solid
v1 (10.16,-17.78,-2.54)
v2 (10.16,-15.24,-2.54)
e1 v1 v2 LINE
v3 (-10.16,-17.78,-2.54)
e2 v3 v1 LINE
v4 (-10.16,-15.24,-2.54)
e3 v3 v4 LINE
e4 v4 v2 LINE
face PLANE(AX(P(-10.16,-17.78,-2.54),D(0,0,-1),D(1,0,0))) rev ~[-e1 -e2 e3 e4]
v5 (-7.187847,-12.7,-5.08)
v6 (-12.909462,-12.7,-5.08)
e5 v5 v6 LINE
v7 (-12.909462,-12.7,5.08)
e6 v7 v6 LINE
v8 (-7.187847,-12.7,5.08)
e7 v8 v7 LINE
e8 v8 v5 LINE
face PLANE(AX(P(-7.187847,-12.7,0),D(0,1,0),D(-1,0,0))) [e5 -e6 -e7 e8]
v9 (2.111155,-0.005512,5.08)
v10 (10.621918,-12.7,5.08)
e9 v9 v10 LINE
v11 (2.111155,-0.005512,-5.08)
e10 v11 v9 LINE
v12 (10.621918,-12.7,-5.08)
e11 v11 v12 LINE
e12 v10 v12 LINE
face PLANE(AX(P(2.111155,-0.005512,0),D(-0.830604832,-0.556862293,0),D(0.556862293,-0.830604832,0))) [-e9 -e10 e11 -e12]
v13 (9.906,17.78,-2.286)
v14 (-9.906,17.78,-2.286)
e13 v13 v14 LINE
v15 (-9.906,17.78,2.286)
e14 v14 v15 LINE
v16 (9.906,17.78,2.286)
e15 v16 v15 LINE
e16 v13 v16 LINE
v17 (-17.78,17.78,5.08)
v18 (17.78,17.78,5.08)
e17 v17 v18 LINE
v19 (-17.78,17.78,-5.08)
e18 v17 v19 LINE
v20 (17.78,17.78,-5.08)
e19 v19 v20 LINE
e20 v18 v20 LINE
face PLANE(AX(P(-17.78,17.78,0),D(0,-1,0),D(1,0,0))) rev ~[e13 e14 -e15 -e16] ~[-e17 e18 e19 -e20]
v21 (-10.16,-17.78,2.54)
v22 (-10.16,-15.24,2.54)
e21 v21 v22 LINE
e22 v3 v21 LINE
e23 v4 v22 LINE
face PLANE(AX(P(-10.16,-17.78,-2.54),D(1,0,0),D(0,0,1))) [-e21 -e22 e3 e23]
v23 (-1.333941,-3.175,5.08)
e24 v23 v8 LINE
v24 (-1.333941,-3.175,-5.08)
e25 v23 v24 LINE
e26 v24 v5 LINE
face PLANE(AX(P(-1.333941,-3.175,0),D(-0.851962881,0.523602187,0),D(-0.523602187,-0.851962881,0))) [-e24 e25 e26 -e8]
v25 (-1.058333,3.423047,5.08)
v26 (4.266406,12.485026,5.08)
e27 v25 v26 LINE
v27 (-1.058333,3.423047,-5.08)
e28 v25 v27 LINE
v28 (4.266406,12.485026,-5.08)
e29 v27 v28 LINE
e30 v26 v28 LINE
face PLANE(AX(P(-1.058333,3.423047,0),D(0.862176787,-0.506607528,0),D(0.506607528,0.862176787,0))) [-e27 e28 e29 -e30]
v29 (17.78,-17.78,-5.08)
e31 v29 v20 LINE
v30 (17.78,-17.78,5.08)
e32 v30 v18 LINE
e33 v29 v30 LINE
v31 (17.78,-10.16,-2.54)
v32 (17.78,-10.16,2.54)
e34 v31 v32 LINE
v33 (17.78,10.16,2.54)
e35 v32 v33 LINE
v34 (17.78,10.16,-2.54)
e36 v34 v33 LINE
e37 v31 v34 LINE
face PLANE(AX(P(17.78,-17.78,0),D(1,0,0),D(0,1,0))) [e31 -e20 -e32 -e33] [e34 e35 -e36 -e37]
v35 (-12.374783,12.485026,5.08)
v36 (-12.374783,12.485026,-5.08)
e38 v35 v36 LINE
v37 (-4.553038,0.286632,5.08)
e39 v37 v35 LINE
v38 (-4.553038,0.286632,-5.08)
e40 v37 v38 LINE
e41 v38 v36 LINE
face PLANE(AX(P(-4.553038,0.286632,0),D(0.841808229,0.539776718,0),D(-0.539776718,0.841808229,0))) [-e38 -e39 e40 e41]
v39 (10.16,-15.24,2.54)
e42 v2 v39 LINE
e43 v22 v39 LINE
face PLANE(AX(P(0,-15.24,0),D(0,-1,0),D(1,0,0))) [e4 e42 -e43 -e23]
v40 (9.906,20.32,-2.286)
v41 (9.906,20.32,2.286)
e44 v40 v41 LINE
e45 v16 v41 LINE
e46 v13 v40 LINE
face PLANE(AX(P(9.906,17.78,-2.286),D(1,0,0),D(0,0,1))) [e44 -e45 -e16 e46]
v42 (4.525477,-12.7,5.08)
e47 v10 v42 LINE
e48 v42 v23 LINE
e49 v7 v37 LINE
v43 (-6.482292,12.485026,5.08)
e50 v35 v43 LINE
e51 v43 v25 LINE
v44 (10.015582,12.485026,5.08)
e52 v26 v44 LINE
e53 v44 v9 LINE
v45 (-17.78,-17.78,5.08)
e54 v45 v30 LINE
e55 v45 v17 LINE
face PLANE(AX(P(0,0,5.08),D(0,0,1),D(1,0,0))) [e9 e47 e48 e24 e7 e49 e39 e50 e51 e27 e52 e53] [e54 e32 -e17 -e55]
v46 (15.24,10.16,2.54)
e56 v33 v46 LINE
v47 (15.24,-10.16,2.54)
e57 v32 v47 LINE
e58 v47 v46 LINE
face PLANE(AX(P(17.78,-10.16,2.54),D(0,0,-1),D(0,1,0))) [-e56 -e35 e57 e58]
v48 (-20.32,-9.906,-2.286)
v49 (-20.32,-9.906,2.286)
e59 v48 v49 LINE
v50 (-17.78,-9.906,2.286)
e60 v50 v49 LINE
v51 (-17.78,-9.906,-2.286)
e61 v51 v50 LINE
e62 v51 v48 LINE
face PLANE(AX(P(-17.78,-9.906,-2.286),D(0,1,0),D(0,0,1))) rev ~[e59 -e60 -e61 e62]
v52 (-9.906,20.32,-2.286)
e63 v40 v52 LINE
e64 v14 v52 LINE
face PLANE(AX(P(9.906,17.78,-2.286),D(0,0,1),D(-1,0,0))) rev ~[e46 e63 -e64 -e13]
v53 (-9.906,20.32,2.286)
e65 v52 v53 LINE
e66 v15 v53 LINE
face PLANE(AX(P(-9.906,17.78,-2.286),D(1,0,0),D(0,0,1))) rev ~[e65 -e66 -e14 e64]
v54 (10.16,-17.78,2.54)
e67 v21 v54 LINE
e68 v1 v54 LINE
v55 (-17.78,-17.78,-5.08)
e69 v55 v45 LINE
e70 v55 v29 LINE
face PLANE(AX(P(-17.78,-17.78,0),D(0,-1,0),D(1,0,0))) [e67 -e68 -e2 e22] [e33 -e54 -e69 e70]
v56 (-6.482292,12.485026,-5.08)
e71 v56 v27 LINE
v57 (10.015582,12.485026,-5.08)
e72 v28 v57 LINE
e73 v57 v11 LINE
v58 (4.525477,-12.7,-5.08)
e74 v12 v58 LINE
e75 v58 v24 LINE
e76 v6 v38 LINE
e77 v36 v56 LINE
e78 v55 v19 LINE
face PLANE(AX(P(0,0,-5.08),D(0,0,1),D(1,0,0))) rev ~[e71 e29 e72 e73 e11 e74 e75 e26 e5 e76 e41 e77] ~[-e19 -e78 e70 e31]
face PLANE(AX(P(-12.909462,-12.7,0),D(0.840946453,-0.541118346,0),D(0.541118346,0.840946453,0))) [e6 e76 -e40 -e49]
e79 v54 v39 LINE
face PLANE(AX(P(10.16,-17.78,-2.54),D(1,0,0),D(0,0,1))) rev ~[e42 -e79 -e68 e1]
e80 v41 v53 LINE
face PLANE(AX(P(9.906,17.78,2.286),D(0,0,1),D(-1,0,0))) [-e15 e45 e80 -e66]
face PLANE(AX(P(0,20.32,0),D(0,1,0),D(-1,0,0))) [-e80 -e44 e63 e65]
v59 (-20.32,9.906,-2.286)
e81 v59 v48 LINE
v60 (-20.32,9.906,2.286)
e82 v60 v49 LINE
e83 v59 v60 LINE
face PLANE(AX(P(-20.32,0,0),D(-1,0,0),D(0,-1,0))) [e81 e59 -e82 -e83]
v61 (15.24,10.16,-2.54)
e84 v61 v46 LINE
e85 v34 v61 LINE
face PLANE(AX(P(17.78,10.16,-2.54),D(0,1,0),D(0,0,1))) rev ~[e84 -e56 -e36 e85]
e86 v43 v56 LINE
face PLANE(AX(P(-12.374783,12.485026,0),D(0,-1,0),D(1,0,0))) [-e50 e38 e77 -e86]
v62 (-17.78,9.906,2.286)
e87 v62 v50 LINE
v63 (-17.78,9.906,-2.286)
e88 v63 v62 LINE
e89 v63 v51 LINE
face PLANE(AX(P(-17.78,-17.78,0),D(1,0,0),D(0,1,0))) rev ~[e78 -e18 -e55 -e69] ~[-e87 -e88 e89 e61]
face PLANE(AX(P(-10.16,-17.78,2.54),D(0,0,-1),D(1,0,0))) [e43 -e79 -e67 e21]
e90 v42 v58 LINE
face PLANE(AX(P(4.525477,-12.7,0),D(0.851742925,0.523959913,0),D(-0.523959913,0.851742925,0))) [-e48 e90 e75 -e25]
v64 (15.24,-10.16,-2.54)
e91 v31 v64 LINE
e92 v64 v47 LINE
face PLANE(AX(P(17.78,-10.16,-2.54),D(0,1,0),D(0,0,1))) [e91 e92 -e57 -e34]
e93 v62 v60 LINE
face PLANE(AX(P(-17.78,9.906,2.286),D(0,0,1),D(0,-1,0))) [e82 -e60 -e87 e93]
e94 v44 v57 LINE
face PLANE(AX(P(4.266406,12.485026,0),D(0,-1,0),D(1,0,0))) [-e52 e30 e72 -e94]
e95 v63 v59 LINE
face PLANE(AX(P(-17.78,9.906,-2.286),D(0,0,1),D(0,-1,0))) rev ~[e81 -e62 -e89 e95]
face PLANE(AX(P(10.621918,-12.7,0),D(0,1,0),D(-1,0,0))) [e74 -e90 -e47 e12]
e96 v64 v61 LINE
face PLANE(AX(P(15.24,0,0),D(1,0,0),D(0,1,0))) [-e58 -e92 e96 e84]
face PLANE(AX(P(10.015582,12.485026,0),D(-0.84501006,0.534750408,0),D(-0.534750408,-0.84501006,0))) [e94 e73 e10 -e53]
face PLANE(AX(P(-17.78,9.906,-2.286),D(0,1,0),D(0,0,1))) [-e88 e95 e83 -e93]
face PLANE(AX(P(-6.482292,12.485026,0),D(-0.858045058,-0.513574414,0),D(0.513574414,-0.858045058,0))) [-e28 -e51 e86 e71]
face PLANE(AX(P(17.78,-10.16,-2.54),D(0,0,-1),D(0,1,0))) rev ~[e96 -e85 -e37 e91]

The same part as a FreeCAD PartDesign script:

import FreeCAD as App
import Part
import Sketcher
from FreeCAD import Vector
Q = App.Units.Quantity

doc = App.newDocument("Part")
params = doc.addObject("Spreadsheet::Sheet", "Params")
for row, (alias, value) in enumerate([
    ("sketch1_width", "1.4 in"),
    ("pad1_length", "0.4 in"),
    ("sketch2_width", "0.78 in"),
    ("sketch2_height", "0.18 in"),
    ("pad2_length", "0.1 in"),
    ("sketch3_width", "0.78 in"),
    ("sketch3_height", "0.18 in"),
    ("pad3_length", "0.1 in"),
    ("sketch4_width", "0.8 in"),
    ("sketch4_height", "0.2 in"),
    ("pocket1_length", "0.1 in"),
    ("sketch5_width", "0.8 in"),
    ("sketch5_height", "0.2 in"),
    ("pocket2_length", "0.1 in"),
], start=1):
    params.set(f"A{row}", alias)
    params.set(f"B{row}", "=" + value)
    params.setAlias(f"B{row}", alias)

body = doc.addObject("PartDesign::Body", "Body")

sketch1 = body.newObject("Sketcher::SketchObject", "Sketch")
sketch1.AttachmentSupport = (doc.getObject("XY_Plane"), [""])
sketch1.MapMode = "FlatFace"
sketch1.addGeometry(Part.LineSegment(Vector(-18, 18, 0), Vector(-18, -18, 0)), False)
sketch1.addGeometry(Part.LineSegment(Vector(-18, -18, 0), Vector(18, -18, 0)), False)
sketch1.addGeometry(Part.LineSegment(Vector(18, -18, 0), Vector(18, 18, 0)), False)
sketch1.addGeometry(Part.LineSegment(Vector(18, 18, 0), Vector(-18, 18, 0)), False)
sketch1.addGeometry(Part.LineSegment(Vector(10, 12, 0), Vector(2, 0, 0)), False)
sketch1.addGeometry(Part.LineSegment(Vector(2, 0, 0), Vector(11, -13, 0)), False)
sketch1.addGeometry(Part.LineSegment(Vector(11, -13, 0), Vector(5, -13, 0)), False)
sketch1.addGeometry(Part.LineSegment(Vector(5, -13, 0), Vector(-1, -3, 0)), False)
sketch1.addGeometry(Part.LineSegment(Vector(-1, -3, 0), Vector(-7, -13, 0)), False)
sketch1.addGeometry(Part.LineSegment(Vector(-7, -13, 0), Vector(-13, -13, 0)), False)
sketch1.addGeometry(Part.LineSegment(Vector(-13, -13, 0), Vector(-5, 0, 0)), False)
sketch1.addGeometry(Part.LineSegment(Vector(-5, 0, 0), Vector(-12, 12, 0)), False)
sketch1.addGeometry(Part.LineSegment(Vector(-12, 12, 0), Vector(-6, 12, 0)), False)
sketch1.addGeometry(Part.LineSegment(Vector(-6, 12, 0), Vector(-1, 3, 0)), False)
sketch1.addGeometry(Part.LineSegment(Vector(-1, 3, 0), Vector(4, 12, 0)), False)
sketch1.addGeometry(Part.LineSegment(Vector(4, 12, 0), Vector(10, 12, 0)), False)
sketch1.addConstraint(Sketcher.Constraint("Coincident", 0, 2, 1, 1))
sketch1.addConstraint(Sketcher.Constraint("Coincident", 1, 2, 2, 1))
sketch1.addConstraint(Sketcher.Constraint("Coincident", 2, 2, 3, 1))
sketch1.addConstraint(Sketcher.Constraint("Coincident", 3, 2, 0, 1))
sketch1.addConstraint(Sketcher.Constraint("Coincident", 4, 2, 5, 1))
sketch1.addConstraint(Sketcher.Constraint("Coincident", 5, 2, 6, 1))
sketch1.addConstraint(Sketcher.Constraint("Coincident", 6, 2, 7, 1))
sketch1.addConstraint(Sketcher.Constraint("Coincident", 7, 2, 8, 1))
sketch1.addConstraint(Sketcher.Constraint("Coincident", 8, 2, 9, 1))
sketch1.addConstraint(Sketcher.Constraint("Coincident", 9, 2, 10, 1))
sketch1.addConstraint(Sketcher.Constraint("Coincident", 10, 2, 11, 1))
sketch1.addConstraint(Sketcher.Constraint("Coincident", 11, 2, 12, 1))
sketch1.addConstraint(Sketcher.Constraint("Coincident", 12, 2, 13, 1))
sketch1.addConstraint(Sketcher.Constraint("Coincident", 13, 2, 14, 1))
sketch1.addConstraint(Sketcher.Constraint("Coincident", 14, 2, 15, 1))
sketch1.addConstraint(Sketcher.Constraint("Coincident", 15, 2, 4, 1))
sketch1.addConstraint(Sketcher.Constraint("Vertical", 0))
sketch1.addConstraint(Sketcher.Constraint("Horizontal", 1))
sketch1.addConstraint(Sketcher.Constraint("Vertical", 2))
sketch1.addConstraint(Sketcher.Constraint("Horizontal", 3))
sketch1.addConstraint(Sketcher.Constraint("Horizontal", 6))
sketch1.addConstraint(Sketcher.Constraint("Horizontal", 9))
sketch1.addConstraint(Sketcher.Constraint("Horizontal", 12))
sketch1.addConstraint(Sketcher.Constraint("Horizontal", 15))
sketch1.addConstraint(Sketcher.Constraint("Symmetric", 0, 2, 2, 2, -1, 1))
sketch1.addConstraint(Sketcher.Constraint("Horizontal", 6, 2, 8, 2))
sketch1.addConstraint(Sketcher.Constraint("Horizontal", 12, 2, 14, 2))
sketch1.addConstraint(Sketcher.Constraint("Equal", 3, 0))
sketch1.addConstraint(Sketcher.Constraint("DistanceX", 1, 1, 1, 2, Q("1.4 in")))
sketch1.addConstraint(Sketcher.Constraint("DistanceY", 5, 2, -1, 1, Q("0.5 in")))
sketch1.addConstraint(Sketcher.Constraint("DistanceY", 7, 2, -1, 1, Q("0.125 in")))
sketch1.addConstraint(Sketcher.Constraint("Distance", 11, Q("0.5705002 in")))
sketch1.addConstraint(Sketcher.Constraint("DistanceX", 6, 2, 6, 1, Q("6.096441 mm")))
sketch1.addConstraint(Sketcher.Constraint("DistanceX", 12, 1, 12, 2, Q("5.892491 mm")))
sketch1.addConstraint(Sketcher.Constraint("DistanceX", 8, 2, 4, 2, Q("9.299002 mm")))
sketch1.addConstraint(Sketcher.Constraint("Distance", 7, Q("11.182952 mm")))
sketch1.addConstraint(Sketcher.Constraint("Distance", 14, Q("10.510581 mm")))
sketch1.addConstraint(Sketcher.Constraint("DistanceX", 9, 2, 9, 1, Q("5.721615 mm")))
sketch1.addConstraint(Sketcher.Constraint("DistanceX", 15, 1, 15, 2, Q("5.749175 mm")))
sketch1.addConstraint(Sketcher.Constraint("DistanceX", -1, 1, 5, 2, Q("10.621918 mm")))
sketch1.addConstraint(Sketcher.Constraint("DistanceX", 9, 2, -1, 1, Q("12.909462 mm")))
sketch1.addConstraint(Sketcher.Constraint("DistanceX", 10, 2, -1, 1, Q("4.553038 mm")))
sketch1.addConstraint(Sketcher.Constraint("DistanceY", -1, 1, 10, 2, Q("0.286632 mm")))
sketch1.addConstraint(Sketcher.Constraint("DistanceX", 12, 2, -1, 1, Q("6.482292 mm")))
sketch1.addConstraint(Sketcher.Constraint("DistanceX", -1, 1, 15, 2, Q("10.015582 mm")))
sketch1.addConstraint(Sketcher.Constraint("DistanceY", 4, 2, 11, 2, Q("12.490538 mm")))
sketch1.addConstraint(Sketcher.Constraint("DistanceY", 4, 2, 13, 2, Q("3.428559 mm")))
sketch1.setExpression("Constraints[28]", "Params.sketch1_width")
pad1 = body.newObject("PartDesign::Pad", "Pad")
pad1.Profile = sketch1
pad1.setExpression("Length", "Params.pad1_length")
pad1.Midplane = True

sketch2 = body.newObject("Sketcher::SketchObject", "Sketch001")
sketch2.AttachmentSupport = (doc.getObject("XZ_Plane"), [""])
sketch2.MapMode = "FlatFace"
sketch2.AttachmentOffset = App.Placement(Vector(0, 0, -0.7 * 25.4), App.Rotation())
sketch2.addGeometry(Part.LineSegment(Vector(9.9, 2.3, 0), Vector(9.9, -2.3, 0)), False)
sketch2.addGeometry(Part.LineSegment(Vector(9.9, -2.3, 0), Vector(-9.9, -2.3, 0)), False)
sketch2.addGeometry(Part.LineSegment(Vector(-9.9, -2.3, 0), Vector(-9.9, 2.3, 0)), False)
sketch2.addGeometry(Part.LineSegment(Vector(-9.9, 2.3, 0), Vector(9.9, 2.3, 0)), False)
sketch2.addConstraint(Sketcher.Constraint("Coincident", 0, 2, 1, 1))
sketch2.addConstraint(Sketcher.Constraint("Coincident", 1, 2, 2, 1))
sketch2.addConstraint(Sketcher.Constraint("Coincident", 2, 2, 3, 1))
sketch2.addConstraint(Sketcher.Constraint("Coincident", 3, 2, 0, 1))
sketch2.addConstraint(Sketcher.Constraint("Vertical", 0))
sketch2.addConstraint(Sketcher.Constraint("Horizontal", 1))
sketch2.addConstraint(Sketcher.Constraint("Vertical", 2))
sketch2.addConstraint(Sketcher.Constraint("Horizontal", 3))
sketch2.addConstraint(Sketcher.Constraint("Symmetric", 0, 2, 2, 2, -1, 1))
sketch2.addConstraint(Sketcher.Constraint("DistanceX", 1, 2, 1, 1, Q("0.78 in")))
sketch2.addConstraint(Sketcher.Constraint("DistanceY", 0, 2, 0, 1, Q("0.18 in")))
sketch2.setExpression("Constraints[9]", "Params.sketch2_width")
sketch2.setExpression("Constraints[10]", "Params.sketch2_height")
pad2 = body.newObject("PartDesign::Pad", "Pad001")
pad2.Profile = sketch2
pad2.setExpression("Length", "Params.pad2_length")
pad2.Reversed = True

sketch3 = body.newObject("Sketcher::SketchObject", "Sketch002")
sketch3.AttachmentSupport = (doc.getObject("YZ_Plane"), [""])
sketch3.MapMode = "FlatFace"
sketch3.AttachmentOffset = App.Placement(Vector(0, 0, -0.7 * 25.4), App.Rotation())
sketch3.addGeometry(Part.LineSegment(Vector(9.9, 2.3, 0), Vector(9.9, -2.3, 0)), False)
sketch3.addGeometry(Part.LineSegment(Vector(9.9, -2.3, 0), Vector(-9.9, -2.3, 0)), False)
sketch3.addGeometry(Part.LineSegment(Vector(-9.9, -2.3, 0), Vector(-9.9, 2.3, 0)), False)
sketch3.addGeometry(Part.LineSegment(Vector(-9.9, 2.3, 0), Vector(9.9, 2.3, 0)), False)
sketch3.addConstraint(Sketcher.Constraint("Coincident", 0, 2, 1, 1))
sketch3.addConstraint(Sketcher.Constraint("Coincident", 1, 2, 2, 1))
sketch3.addConstraint(Sketcher.Constraint("Coincident", 2, 2, 3, 1))
sketch3.addConstraint(Sketcher.Constraint("Coincident", 3, 2, 0, 1))
sketch3.addConstraint(Sketcher.Constraint("Vertical", 0))
sketch3.addConstraint(Sketcher.Constraint("Horizontal", 1))
sketch3.addConstraint(Sketcher.Constraint("Vertical", 2))
sketch3.addConstraint(Sketcher.Constraint("Horizontal", 3))
sketch3.addConstraint(Sketcher.Constraint("Symmetric", 0, 2, 2, 2, -1, 1))
sketch3.addConstraint(Sketcher.Constraint("DistanceX", 1, 2, 1, 1, Q("0.78 in")))
sketch3.addConstraint(Sketcher.Constraint("DistanceY", 0, 2, 0, 1, Q("0.18 in")))
sketch3.setExpression("Constraints[9]", "Params.sketch3_width")
sketch3.setExpression("Constraints[10]", "Params.sketch3_height")
pad3 = body.newObject("PartDesign::Pad", "Pad002")
pad3.Profile = sketch3
pad3.setExpression("Length", "Params.pad3_length")
pad3.Reversed = True

sketch4 = body.newObject("Sketcher::SketchObject", "Sketch003")
sketch4.AttachmentSupport = (doc.getObject("XZ_Plane"), [""])
sketch4.MapMode = "FlatFace"
sketch4.AttachmentOffset = App.Placement(Vector(0, 0, 0.7 * 25.4), App.Rotation())
sketch4.addGeometry(Part.LineSegment(Vector(-10, 3, 0), Vector(-10, -3, 0)), False)
sketch4.addGeometry(Part.LineSegment(Vector(-10, -3, 0), Vector(10, -3, 0)), False)
sketch4.addGeometry(Part.LineSegment(Vector(10, -3, 0), Vector(10, 3, 0)), False)
sketch4.addGeometry(Part.LineSegment(Vector(10, 3, 0), Vector(-10, 3, 0)), False)
sketch4.addConstraint(Sketcher.Constraint("Coincident", 0, 2, 1, 1))
sketch4.addConstraint(Sketcher.Constraint("Coincident", 1, 2, 2, 1))
sketch4.addConstraint(Sketcher.Constraint("Coincident", 2, 2, 3, 1))
sketch4.addConstraint(Sketcher.Constraint("Coincident", 3, 2, 0, 1))
sketch4.addConstraint(Sketcher.Constraint("Vertical", 0))
sketch4.addConstraint(Sketcher.Constraint("Horizontal", 1))
sketch4.addConstraint(Sketcher.Constraint("Vertical", 2))
sketch4.addConstraint(Sketcher.Constraint("Horizontal", 3))
sketch4.addConstraint(Sketcher.Constraint("Symmetric", 0, 2, 2, 2, -1, 1))
sketch4.addConstraint(Sketcher.Constraint("DistanceX", 1, 1, 1, 2, Q("0.8 in")))
sketch4.addConstraint(Sketcher.Constraint("DistanceY", 0, 2, 0, 1, Q("0.2 in")))
sketch4.setExpression("Constraints[9]", "Params.sketch4_width")
sketch4.setExpression("Constraints[10]", "Params.sketch4_height")
pocket1 = body.newObject("PartDesign::Pocket", "Pocket")
pocket1.Profile = sketch4
pocket1.setExpression("Length", "Params.pocket1_length")

sketch5 = body.newObject("Sketcher::SketchObject", "Sketch004")
sketch5.AttachmentSupport = (doc.getObject("YZ_Plane"), [""])
sketch5.MapMode = "FlatFace"
sketch5.AttachmentOffset = App.Placement(Vector(0, 0, 0.7 * 25.4), App.Rotation())
sketch5.addGeometry(Part.LineSegment(Vector(-10, 3, 0), Vector(-10, -3, 0)), False)
sketch5.addGeometry(Part.LineSegment(Vector(-10, -3, 0), Vector(10, -3, 0)), False)
sketch5.addGeometry(Part.LineSegment(Vector(10, -3, 0), Vector(10, 3, 0)), False)
sketch5.addGeometry(Part.LineSegment(Vector(10, 3, 0), Vector(-10, 3, 0)), False)
sketch5.addConstraint(Sketcher.Constraint("Coincident", 0, 2, 1, 1))
sketch5.addConstraint(Sketcher.Constraint("Coincident", 1, 2, 2, 1))
sketch5.addConstraint(Sketcher.Constraint("Coincident", 2, 2, 3, 1))
sketch5.addConstraint(Sketcher.Constraint("Coincident", 3, 2, 0, 1))
sketch5.addConstraint(Sketcher.Constraint("Vertical", 0))
sketch5.addConstraint(Sketcher.Constraint("Horizontal", 1))
sketch5.addConstraint(Sketcher.Constraint("Vertical", 2))
sketch5.addConstraint(Sketcher.Constraint("Horizontal", 3))
sketch5.addConstraint(Sketcher.Constraint("Symmetric", 0, 2, 2, 2, -1, 1))
sketch5.addConstraint(Sketcher.Constraint("DistanceX", 1, 1, 1, 2, Q("0.8 in")))
sketch5.addConstraint(Sketcher.Constraint("DistanceY", 0, 2, 0, 1, Q("0.2 in")))
sketch5.setExpression("Constraints[9]", "Params.sketch5_width")
sketch5.setExpression("Constraints[10]", "Params.sketch5_height")
pocket2 = body.newObject("PartDesign::Pocket", "Pocket001")
pocket2.Profile = sketch5
pocket2.setExpression("Length", "Params.pocket2_length")

doc.recompute()
